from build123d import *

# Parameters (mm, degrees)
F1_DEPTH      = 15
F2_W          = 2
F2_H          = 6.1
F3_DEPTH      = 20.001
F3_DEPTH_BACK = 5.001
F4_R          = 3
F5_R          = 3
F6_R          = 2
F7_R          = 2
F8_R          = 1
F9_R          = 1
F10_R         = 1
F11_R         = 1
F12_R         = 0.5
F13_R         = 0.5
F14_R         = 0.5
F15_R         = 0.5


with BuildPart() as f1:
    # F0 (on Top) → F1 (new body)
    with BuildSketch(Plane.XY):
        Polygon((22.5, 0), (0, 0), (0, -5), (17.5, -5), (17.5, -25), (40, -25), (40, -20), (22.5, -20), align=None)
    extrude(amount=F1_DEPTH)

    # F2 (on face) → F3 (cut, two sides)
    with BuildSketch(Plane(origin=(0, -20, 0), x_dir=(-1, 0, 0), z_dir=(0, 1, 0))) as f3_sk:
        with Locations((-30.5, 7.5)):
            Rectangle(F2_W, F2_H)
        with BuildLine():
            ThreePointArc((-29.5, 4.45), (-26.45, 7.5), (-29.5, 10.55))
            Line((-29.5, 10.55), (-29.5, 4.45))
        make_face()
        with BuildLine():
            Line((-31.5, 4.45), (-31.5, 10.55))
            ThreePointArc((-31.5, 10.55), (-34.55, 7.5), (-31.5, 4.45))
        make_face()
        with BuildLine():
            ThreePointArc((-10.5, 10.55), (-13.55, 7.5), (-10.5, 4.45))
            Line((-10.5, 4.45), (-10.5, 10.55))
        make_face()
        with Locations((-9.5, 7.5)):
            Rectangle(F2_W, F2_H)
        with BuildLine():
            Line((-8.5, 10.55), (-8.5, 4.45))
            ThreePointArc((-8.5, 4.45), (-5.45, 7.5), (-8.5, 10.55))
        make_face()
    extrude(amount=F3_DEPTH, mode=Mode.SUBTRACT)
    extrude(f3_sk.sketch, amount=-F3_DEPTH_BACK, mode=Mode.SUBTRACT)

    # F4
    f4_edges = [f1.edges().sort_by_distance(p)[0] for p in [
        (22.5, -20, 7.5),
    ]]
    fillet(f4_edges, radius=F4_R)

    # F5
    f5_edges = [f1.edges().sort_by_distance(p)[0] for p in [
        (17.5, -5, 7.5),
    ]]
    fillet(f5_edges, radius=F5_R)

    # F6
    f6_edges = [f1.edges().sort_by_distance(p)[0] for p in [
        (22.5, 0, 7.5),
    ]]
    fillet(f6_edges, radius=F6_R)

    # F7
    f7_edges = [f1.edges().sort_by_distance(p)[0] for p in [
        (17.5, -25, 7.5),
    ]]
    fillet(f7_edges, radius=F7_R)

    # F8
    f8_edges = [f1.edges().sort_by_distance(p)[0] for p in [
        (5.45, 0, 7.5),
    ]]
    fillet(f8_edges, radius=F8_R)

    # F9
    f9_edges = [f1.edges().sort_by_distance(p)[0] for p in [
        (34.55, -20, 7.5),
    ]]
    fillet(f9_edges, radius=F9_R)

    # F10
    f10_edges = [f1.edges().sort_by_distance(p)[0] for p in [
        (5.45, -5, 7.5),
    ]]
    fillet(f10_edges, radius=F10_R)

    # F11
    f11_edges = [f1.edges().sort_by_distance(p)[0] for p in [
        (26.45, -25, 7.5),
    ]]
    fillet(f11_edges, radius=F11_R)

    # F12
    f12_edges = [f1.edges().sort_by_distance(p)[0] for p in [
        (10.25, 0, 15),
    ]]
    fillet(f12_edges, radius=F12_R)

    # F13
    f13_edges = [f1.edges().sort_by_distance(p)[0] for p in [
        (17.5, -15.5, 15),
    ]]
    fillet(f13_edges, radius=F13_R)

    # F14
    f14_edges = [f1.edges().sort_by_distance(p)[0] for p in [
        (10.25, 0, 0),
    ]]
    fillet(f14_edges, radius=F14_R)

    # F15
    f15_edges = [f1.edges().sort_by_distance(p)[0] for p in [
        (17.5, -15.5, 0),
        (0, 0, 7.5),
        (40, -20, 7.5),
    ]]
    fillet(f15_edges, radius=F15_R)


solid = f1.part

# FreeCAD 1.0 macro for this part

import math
import FreeCAD as App
import Part
import Sketcher

V = App.Vector


def edges_at(feature, points):
    """Names of the edges that pass closest to the given points."""
    edges = feature.Shape.Edges
    near = lambda p: min(range(len(edges)), key=lambda i: edges[i].distToShape(Part.Vertex(*p))[0])
    return sorted({f"Edge{near(p) + 1}" for p in points})

doc = App.newDocument("Part")
body = doc.addObject("PartDesign::Body", "Body")

# Sketch on XY plane
sketch1 = doc.addObject("Sketcher::SketchObject", "Sketch")
body.addObject(sketch1)
sketch1.AttachmentSupport = (doc.XY_Plane, [""])
sketch1.MapMode = "FlatFace"
sketch1.addGeometry(Part.LineSegment(V(22, 0, 0), V(0, 0, 0)), False)
sketch1.addGeometry(Part.LineSegment(V(0, 0, 0), V(0, -5, 0)), False)
sketch1.addGeometry(Part.LineSegment(V(0, -5, 0), V(18, -5, 0)), False)
sketch1.addGeometry(Part.LineSegment(V(18, -5, 0), V(18, -25, 0)), False)
sketch1.addGeometry(Part.LineSegment(V(18, -25, 0), V(40, -25, 0)), False)
sketch1.addGeometry(Part.LineSegment(V(40, -25, 0), V(40, -20, 0)), False)
sketch1.addGeometry(Part.LineSegment(V(40, -20, 0), V(22, -20, 0)), False)
sketch1.addGeometry(Part.LineSegment(V(22, -20, 0), V(22, 0, 0)), False)
sketch1.addConstraint(Sketcher.Constraint("Coincident", 0, 2, 1, 1))
sketch1.addConstraint(Sketcher.Constraint("Coincident", 1, 2, 2, 1))
sketch1.addConstraint(Sketcher.Constraint("Coincident", 2, 2, 3, 1))
sketch1.addConstraint(Sketcher.Constraint("Coincident", 3, 2, 4, 1))
sketch1.addConstraint(Sketcher.Constraint("Coincident", 4, 2, 5, 1))
sketch1.addConstraint(Sketcher.Constraint("Coincident", 5, 2, 6, 1))
sketch1.addConstraint(Sketcher.Constraint("Coincident", 6, 2, 7, 1))
sketch1.addConstraint(Sketcher.Constraint("Coincident", 7, 2, 0, 1))
sketch1.addConstraint(Sketcher.Constraint("Horizontal", 0))
sketch1.addConstraint(Sketcher.Constraint("Vertical", 1))
sketch1.addConstraint(Sketcher.Constraint("Horizontal", 2))
sketch1.addConstraint(Sketcher.Constraint("Vertical", 3))
sketch1.addConstraint(Sketcher.Constraint("Horizontal", 4))
sketch1.addConstraint(Sketcher.Constraint("Vertical", 5))
sketch1.addConstraint(Sketcher.Constraint("Horizontal", 6))
sketch1.addConstraint(Sketcher.Constraint("Vertical", 7))
sketch1.addConstraint(Sketcher.Constraint("Coincident", 0, 2, -1, 1))
sketch1.addConstraint(Sketcher.Constraint("Equal", 0, 4))
sketch1.addConstraint(Sketcher.Constraint("Equal", 1, 5))
sketch1.addConstraint(Sketcher.Constraint("DistanceY", 1, 2, 1, 1, 5.0))
sketch1.addConstraint(Sketcher.Constraint("DistanceY", 3, 2, 3, 1, 20.0))
sketch1.addConstraint(Sketcher.Constraint("DistanceX", 0, 2, 0, 1, 22.5))
sketch1.addConstraint(Sketcher.Constraint("DistanceX", 2, 1, 2, 2, 17.5))
pad1 = doc.addObject("PartDesign::Pad", "Pad")
body.addObject(pad1)
pad1.Profile = sketch1
pad1.Length = 15

# Sketch on XZ plane
sketch2 = doc.addObject("Sketcher::SketchObject", "Sketch001")
body.addObject(sketch2)
sketch2.AttachmentSupport = (doc.XZ_Plane, [""])
sketch2.MapMode = "FlatFace"
sketch2.AttachmentOffset = App.Placement(V(0, 0, 20), App.Rotation())
sketch2.addGeometry(Part.LineSegment(V(31.5, 4.5, 0), V(29.5, 4.5, 0)), False)
sketch2.addGeometry(Part.ArcOfCircle(Part.Circle(V(29.5, 7.5, 0), V(0, 0, 1), 3), math.radians(90), math.radians(270)), False)
sketch2.addGeometry(Part.LineSegment(V(29.5, 10.6, 0), V(31.5, 10.6, 0)), False)
sketch2.addGeometry(Part.ArcOfCircle(Part.Circle(V(31.5, 7.5, 0), V(0, 0, 1), 3), math.radians(-90), math.radians(90)), False)
sketch2.addGeometry(Part.ArcOfCircle(Part.Circle(V(10.5, 7.5, 0), V(0, 0, 1), 3), math.radians(-90), math.radians(90)), False)
sketch2.addGeometry(Part.LineSegment(V(10.5, 4.5, 0), V(8.5, 4.5, 0)), False)
sketch2.addGeometry(Part.ArcOfCircle(Part.Circle(V(8.5, 7.5, 0), V(0, 0, 1), 3), math.radians(90), math.radians(270)), False)
sketch2.addGeometry(Part.LineSegment(V(8.5, 10.6, 0), V(10.5, 10.6, 0)), False)
sketch2.addConstraint(Sketcher.Constraint("Tangent", 0, 2, 1, 2))
sketch2.addConstraint(Sketcher.Constraint("Tangent", 1, 1, 2, 1))
sketch2.addConstraint(Sketcher.Constraint("Tangent", 2, 2, 3, 2))
sketch2.addConstraint(Sketcher.Constraint("Tangent", 3, 1, 0, 1))
sketch2.addConstraint(Sketcher.Constraint("Tangent", 4, 1, 5, 1))
sketch2.addConstraint(Sketcher.Constraint("Tangent", 5, 2, 6, 2))
sketch2.addConstraint(Sketcher.Constraint("Tangent", 6, 1, 7, 1))
sketch2.addConstraint(Sketcher.Constraint("Tangent", 7, 2, 4, 2))
sketch2.addConstraint(Sketcher.Constraint("Horizontal", 0))
sketch2.addConstraint(Sketcher.Constraint("Horizontal", 2))
sketch2.addConstraint(Sketcher.Constraint("Horizontal", 5))
sketch2.addConstraint(Sketcher.Constraint("Horizontal", 7))
sketch2.addConstraint(Sketcher.Constraint("Equal", 3, 4))
sketch2.addConstraint(Sketcher.Constraint("Horizontal", 3, 3, 4, 3))
sketch2.addConstraint(Sketcher.Constraint("Equal", 2, 5))
sketch2.addConstraint(Sketcher.Constraint("DistanceX", 0, 2, 0, 1, 2.0))
sketch2.addConstraint(Sketcher.Constraint("Radius", 1, 3.05))
sketch2.addConstraint(Sketcher.Constraint("DistanceX", 4, 3, 1, 3, 19.0))
sketch2.addConstraint(Sketcher.Constraint("DistanceX", -1, 1, 1, 3, 29.5))
sketch2.addConstraint(Sketcher.Constraint("DistanceY", -1, 1, 1, 3, 7.5))
pocket1 = doc.addObject("PartDesign::Pocket", "Pocket")
body.addObject(pocket1)
pocket1.Profile = sketch2
pocket1.Type = "ThroughAll"
pocket1.Midplane = True
doc.recompute()

fillet = doc.addObject("PartDesign::Fillet", "Fillet")
body.addObject(fillet)
fillet.Base = (pocket1, edges_at(pocket1, [(22.5, -20, 7.5)]))
fillet.Radius = 3
doc.recompute()

fillet2 = doc.addObject("PartDesign::Fillet", "Fillet001")
body.addObject(fillet2)
fillet2.Base = (fillet, edges_at(fillet, [(17.5, -5, 7.5)]))
fillet2.Radius = 3
doc.recompute()

fillet3 = doc.addObject("PartDesign::Fillet", "Fillet002")
body.addObject(fillet3)
fillet3.Base = (fillet2, edges_at(fillet2, [(22.5, 0, 7.5)]))
fillet3.Radius = 2
doc.recompute()

fillet4 = doc.addObject("PartDesign::Fillet", "Fillet003")
body.addObject(fillet4)
fillet4.Base = (fillet3, edges_at(fillet3, [(17.5, -25, 7.5)]))
fillet4.Radius = 2
doc.recompute()

fillet5 = doc.addObject("PartDesign::Fillet", "Fillet004")
body.addObject(fillet5)
fillet5.Base = (fillet4, edges_at(fillet4, [(5.45, 0, 7.5)]))
fillet5.Radius = 1
doc.recompute()

fillet6 = doc.addObject("PartDesign::Fillet", "Fillet005")
body.addObject(fillet6)
fillet6.Base = (fillet5, edges_at(fillet5, [(34.55, -20, 7.5)]))
fillet6.Radius = 1
doc.recompute()

fillet7 = doc.addObject("PartDesign::Fillet", "Fillet006")
body.addObject(fillet7)
fillet7.Base = (fillet6, edges_at(fillet6, [(5.45, -5, 7.5)]))
fillet7.Radius = 1
doc.recompute()

fillet8 = doc.addObject("PartDesign::Fillet", "Fillet007")
body.addObject(fillet8)
fillet8.Base = (fillet7, edges_at(fillet7, [(26.45, -25, 7.5)]))
fillet8.Radius = 1
doc.recompute()

fillet9 = doc.addObject("PartDesign::Fillet", "Fillet008")
body.addObject(fillet9)
fillet9.Base = (fillet8, edges_at(fillet8, [(10.25, 0, 15)]))
fillet9.Radius = 0.5
doc.recompute()

fillet10 = doc.addObject("PartDesign::Fillet", "Fillet009")
body.addObject(fillet10)
fillet10.Base = (fillet9, edges_at(fillet9, [(17.5, -15.5, 15)]))
fillet10.Radius = 0.5
doc.recompute()

fillet11 = doc.addObject("PartDesign::Fillet", "Fillet010")
body.addObject(fillet11)
fillet11.Base = (fillet10, edges_at(fillet10, [(10.25, 0, 0)]))
fillet11.Radius = 0.5
doc.recompute()

fillet12 = doc.addObject("PartDesign::Fillet", "Fillet011")
body.addObject(fillet12)
fillet12.Base = (fillet11, edges_at(fillet11, [(17.5, -15.5, 0), (0, 0, 7.5), (40, -20, 7.5)]))
fillet12.Radius = 0.5

doc.recompute()
